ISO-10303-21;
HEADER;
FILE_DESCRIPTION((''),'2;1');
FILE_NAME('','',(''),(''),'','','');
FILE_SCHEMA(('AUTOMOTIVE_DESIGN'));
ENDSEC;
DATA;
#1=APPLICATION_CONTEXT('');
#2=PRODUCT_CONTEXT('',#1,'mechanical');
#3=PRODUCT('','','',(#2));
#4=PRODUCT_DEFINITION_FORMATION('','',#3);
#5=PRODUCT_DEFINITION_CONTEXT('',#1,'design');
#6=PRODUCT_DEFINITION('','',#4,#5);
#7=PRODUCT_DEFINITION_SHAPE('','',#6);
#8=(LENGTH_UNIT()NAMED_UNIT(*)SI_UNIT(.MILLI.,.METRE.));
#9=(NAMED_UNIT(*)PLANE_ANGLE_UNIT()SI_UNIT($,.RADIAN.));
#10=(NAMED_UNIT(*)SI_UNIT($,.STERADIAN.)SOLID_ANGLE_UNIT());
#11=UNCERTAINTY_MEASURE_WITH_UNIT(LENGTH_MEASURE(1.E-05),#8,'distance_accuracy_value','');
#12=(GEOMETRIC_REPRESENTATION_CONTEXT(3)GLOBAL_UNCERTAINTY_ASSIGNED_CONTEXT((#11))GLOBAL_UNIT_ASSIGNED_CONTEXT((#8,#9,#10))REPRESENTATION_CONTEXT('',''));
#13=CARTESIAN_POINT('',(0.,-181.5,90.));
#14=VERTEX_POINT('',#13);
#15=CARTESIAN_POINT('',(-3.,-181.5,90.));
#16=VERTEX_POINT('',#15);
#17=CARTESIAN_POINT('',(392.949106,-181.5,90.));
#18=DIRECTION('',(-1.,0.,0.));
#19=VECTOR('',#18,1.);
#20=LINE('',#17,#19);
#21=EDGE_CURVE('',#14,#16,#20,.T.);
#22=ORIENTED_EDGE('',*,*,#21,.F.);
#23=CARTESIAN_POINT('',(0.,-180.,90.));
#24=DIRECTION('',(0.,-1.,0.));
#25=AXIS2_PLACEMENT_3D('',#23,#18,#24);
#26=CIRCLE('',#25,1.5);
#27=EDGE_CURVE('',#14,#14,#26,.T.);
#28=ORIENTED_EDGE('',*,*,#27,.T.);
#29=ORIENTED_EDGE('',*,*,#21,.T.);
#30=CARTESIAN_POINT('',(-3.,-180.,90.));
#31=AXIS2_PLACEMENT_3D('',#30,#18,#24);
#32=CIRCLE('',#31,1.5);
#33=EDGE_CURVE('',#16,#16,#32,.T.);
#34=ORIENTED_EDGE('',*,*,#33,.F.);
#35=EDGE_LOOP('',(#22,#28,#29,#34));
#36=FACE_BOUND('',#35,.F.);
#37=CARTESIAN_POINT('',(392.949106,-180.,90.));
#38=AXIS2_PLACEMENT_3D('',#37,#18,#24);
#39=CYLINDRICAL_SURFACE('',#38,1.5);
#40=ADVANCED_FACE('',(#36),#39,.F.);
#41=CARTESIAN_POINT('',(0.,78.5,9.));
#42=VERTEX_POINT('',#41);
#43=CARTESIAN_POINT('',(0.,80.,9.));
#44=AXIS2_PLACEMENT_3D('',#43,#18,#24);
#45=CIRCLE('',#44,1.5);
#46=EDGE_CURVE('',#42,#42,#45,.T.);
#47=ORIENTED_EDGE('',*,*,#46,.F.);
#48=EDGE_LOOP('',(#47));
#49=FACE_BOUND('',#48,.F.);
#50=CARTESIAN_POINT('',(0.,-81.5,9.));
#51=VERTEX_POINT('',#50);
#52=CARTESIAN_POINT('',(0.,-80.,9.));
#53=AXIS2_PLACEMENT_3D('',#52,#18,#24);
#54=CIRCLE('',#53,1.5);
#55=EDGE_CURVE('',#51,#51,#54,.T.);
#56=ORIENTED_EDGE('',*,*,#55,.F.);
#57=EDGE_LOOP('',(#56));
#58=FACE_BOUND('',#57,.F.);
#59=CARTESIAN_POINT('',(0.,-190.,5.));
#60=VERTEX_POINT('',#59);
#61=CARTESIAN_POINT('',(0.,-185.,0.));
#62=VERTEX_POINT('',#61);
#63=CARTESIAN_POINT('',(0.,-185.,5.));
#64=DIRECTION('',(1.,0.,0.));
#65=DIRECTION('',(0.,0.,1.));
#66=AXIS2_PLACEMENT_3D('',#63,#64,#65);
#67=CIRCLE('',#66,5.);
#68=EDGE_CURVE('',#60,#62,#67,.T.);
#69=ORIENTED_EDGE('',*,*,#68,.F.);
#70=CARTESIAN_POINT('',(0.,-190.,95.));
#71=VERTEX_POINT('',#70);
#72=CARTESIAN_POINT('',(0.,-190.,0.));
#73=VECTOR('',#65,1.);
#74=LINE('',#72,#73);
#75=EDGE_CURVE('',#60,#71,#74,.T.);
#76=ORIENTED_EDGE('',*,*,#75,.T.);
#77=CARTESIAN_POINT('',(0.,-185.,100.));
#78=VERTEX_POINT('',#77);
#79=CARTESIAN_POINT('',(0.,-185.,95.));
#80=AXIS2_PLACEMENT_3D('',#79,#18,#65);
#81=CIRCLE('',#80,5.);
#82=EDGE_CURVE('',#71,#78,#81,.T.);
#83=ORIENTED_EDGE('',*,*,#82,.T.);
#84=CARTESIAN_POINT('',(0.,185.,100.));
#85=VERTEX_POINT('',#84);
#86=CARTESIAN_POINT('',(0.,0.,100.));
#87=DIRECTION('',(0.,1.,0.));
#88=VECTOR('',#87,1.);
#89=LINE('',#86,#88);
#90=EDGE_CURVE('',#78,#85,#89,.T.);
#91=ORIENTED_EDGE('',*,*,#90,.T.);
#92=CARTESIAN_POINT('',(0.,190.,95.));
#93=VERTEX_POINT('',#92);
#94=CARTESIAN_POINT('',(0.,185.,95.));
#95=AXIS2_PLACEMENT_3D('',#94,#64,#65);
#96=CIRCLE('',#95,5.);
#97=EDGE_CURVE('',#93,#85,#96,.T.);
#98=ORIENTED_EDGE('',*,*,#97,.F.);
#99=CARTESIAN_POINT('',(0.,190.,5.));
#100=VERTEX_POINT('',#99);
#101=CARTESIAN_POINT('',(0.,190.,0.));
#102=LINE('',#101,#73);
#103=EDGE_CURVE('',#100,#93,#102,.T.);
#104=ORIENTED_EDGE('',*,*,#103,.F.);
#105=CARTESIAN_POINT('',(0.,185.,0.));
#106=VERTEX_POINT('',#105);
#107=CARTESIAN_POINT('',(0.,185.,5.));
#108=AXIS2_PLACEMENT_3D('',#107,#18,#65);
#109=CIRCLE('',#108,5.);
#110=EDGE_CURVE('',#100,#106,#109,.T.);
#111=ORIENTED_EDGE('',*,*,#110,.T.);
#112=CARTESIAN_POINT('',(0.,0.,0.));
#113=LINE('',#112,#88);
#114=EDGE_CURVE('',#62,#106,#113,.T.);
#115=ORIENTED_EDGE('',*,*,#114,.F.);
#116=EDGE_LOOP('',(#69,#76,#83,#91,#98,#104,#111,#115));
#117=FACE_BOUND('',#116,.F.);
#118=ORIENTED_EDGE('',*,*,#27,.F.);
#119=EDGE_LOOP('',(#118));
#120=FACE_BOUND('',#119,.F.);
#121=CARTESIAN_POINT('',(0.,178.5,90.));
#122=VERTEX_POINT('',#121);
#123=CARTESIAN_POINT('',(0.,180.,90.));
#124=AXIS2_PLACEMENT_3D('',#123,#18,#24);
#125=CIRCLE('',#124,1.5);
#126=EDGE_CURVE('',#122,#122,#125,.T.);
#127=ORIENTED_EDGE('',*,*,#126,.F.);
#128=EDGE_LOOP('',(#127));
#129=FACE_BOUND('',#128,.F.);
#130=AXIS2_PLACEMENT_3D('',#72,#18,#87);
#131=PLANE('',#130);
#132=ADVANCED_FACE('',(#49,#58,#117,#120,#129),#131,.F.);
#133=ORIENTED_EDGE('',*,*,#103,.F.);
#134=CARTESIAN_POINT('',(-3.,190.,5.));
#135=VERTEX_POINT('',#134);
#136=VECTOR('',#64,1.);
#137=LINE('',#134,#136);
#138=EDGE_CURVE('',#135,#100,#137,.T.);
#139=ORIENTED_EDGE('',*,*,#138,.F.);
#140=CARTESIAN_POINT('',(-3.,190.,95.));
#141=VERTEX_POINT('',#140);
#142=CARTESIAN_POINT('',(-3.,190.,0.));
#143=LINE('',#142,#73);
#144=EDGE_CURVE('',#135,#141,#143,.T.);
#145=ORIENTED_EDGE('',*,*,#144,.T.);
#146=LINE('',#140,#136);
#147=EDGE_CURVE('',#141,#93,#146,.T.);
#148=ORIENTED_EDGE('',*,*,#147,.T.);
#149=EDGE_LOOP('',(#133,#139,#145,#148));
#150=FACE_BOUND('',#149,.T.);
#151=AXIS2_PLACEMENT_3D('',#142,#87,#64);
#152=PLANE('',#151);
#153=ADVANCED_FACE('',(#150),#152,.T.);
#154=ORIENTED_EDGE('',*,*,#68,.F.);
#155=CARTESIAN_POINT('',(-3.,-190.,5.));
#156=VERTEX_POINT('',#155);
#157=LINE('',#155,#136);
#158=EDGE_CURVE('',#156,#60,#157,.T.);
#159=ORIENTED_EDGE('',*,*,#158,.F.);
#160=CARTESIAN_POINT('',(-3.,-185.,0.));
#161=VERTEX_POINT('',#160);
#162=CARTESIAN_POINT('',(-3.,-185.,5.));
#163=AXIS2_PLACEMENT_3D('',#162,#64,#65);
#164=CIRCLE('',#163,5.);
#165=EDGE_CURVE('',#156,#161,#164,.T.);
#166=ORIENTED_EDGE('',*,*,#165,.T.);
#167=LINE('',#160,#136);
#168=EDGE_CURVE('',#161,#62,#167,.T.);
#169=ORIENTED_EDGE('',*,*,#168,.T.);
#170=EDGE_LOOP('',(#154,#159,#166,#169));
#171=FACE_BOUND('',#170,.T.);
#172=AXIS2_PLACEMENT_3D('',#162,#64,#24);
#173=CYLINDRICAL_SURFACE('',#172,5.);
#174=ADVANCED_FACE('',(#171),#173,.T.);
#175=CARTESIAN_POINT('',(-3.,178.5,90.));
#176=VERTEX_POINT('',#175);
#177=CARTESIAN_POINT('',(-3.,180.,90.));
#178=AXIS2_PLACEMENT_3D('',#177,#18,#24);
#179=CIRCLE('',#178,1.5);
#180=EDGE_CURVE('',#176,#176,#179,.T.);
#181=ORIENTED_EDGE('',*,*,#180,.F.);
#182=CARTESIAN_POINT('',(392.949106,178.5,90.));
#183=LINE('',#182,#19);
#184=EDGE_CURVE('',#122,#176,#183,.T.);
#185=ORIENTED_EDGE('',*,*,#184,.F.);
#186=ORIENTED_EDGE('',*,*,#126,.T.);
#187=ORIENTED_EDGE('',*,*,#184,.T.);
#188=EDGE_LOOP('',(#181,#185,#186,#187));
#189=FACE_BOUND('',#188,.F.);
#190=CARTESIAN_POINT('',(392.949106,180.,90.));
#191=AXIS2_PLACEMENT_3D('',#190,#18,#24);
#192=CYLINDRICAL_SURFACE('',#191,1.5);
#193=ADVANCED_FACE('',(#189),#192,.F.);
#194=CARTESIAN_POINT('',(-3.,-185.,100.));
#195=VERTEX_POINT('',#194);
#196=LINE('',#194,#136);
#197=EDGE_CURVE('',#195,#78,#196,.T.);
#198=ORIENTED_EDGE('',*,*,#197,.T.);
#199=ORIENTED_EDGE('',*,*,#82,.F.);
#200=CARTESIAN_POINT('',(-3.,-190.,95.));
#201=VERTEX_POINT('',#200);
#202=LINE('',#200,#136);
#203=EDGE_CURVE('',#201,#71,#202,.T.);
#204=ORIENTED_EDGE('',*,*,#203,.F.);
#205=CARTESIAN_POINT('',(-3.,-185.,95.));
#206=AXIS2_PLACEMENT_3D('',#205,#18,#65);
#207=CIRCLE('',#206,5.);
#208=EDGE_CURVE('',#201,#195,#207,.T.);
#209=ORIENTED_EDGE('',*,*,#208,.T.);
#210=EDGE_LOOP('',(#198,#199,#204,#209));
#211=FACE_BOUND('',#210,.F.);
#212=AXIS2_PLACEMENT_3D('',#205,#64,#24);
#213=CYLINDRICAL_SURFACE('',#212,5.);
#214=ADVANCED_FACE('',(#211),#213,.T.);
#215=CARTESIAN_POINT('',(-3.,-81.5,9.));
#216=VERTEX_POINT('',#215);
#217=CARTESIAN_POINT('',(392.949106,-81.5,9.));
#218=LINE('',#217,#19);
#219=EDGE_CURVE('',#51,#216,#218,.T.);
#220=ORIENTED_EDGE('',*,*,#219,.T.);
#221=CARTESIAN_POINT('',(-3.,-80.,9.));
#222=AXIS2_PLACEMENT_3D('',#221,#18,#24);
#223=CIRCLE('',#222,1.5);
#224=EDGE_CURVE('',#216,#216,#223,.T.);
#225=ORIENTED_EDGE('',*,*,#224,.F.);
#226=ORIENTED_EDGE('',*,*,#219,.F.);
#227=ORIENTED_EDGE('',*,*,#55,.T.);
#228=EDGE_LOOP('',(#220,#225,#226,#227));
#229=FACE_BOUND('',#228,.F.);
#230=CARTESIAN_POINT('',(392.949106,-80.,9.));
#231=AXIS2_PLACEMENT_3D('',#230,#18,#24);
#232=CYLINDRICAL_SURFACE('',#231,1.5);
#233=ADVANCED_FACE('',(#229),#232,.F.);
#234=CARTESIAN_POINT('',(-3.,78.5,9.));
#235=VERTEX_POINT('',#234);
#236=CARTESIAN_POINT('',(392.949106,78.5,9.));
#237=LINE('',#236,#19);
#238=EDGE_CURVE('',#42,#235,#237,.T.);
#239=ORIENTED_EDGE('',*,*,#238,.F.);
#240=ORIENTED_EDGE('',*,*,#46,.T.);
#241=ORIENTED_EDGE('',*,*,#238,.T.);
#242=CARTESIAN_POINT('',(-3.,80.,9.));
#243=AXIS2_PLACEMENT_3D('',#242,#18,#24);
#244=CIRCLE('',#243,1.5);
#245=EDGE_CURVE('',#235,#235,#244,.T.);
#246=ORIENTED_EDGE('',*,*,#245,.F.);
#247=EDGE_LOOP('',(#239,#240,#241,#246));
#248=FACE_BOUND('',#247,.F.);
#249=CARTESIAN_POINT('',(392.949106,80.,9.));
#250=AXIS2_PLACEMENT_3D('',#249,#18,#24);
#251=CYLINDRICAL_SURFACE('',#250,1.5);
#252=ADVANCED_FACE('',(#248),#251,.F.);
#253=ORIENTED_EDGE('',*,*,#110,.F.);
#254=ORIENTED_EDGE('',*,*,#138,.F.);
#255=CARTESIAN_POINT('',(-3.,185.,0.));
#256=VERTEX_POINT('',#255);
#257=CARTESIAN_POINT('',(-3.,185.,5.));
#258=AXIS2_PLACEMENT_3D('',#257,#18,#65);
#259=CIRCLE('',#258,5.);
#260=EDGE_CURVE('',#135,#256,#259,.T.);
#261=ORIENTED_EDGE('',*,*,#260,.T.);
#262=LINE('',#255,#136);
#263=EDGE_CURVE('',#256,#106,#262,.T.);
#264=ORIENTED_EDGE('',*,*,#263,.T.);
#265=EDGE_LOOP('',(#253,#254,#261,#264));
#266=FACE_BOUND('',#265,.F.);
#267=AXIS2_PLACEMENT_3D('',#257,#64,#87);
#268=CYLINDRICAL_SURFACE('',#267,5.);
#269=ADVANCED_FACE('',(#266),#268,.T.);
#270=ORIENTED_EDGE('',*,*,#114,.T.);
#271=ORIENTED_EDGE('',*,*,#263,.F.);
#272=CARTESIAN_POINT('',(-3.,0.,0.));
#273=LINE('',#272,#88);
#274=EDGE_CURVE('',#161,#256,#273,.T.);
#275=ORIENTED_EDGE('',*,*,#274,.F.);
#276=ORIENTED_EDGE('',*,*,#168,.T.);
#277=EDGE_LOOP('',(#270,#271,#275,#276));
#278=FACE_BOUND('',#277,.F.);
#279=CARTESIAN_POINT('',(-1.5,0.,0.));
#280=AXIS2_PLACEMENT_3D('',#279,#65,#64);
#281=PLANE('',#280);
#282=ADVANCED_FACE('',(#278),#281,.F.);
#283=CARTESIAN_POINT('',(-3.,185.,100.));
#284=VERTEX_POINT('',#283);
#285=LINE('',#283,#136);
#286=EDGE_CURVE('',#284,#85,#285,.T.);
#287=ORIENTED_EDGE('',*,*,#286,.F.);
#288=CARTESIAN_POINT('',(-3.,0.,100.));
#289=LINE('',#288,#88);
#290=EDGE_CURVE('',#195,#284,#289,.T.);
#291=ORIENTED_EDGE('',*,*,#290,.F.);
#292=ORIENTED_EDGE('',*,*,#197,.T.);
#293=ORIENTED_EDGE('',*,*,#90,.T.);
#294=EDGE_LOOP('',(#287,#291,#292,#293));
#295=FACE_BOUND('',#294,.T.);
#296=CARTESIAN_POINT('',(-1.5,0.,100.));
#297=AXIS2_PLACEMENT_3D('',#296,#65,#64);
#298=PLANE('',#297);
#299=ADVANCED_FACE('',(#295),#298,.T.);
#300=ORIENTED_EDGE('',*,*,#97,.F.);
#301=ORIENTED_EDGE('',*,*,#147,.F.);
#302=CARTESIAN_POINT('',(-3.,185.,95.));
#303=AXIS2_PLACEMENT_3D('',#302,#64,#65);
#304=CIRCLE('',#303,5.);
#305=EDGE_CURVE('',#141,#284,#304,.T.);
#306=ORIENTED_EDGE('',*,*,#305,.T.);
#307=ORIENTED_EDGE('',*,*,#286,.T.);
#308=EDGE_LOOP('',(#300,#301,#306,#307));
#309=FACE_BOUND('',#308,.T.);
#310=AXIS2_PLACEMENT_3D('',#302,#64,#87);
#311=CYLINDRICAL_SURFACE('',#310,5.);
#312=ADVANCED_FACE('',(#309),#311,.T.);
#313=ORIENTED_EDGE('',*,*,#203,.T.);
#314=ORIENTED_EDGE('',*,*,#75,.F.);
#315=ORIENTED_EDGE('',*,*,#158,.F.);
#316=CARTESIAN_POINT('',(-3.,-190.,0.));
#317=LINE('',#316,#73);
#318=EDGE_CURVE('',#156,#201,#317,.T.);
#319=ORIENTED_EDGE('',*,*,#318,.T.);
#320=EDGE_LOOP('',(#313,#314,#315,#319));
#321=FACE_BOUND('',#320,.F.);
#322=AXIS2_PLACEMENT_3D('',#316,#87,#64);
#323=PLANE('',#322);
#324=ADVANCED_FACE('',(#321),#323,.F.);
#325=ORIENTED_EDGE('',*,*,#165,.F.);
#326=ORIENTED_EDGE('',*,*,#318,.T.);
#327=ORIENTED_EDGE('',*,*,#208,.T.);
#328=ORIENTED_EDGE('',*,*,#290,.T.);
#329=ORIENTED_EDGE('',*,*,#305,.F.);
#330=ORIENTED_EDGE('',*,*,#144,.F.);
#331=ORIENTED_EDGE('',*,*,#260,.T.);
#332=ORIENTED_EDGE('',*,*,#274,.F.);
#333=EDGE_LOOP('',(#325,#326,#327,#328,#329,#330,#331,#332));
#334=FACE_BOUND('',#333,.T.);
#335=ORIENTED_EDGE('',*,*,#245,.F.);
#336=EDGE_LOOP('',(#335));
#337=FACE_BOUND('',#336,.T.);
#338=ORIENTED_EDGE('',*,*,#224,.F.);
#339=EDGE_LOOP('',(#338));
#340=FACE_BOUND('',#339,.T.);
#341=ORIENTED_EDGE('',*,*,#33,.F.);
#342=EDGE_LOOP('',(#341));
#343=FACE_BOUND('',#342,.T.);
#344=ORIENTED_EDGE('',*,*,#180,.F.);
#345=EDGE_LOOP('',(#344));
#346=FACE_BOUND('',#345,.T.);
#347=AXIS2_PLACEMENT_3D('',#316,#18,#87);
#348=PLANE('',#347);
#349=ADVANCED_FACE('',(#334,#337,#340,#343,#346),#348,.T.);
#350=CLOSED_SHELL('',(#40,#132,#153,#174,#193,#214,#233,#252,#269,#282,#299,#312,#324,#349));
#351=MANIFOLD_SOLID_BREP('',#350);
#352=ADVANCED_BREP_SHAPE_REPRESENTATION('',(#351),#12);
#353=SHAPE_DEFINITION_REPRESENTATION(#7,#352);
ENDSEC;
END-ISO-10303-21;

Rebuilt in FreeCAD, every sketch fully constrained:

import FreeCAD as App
import Part
import Sketcher


def edges_at(feature, points):
    """Names of the edges that pass closest to the given points."""
    edges = feature.Shape.Edges
    near = lambda p: min(range(len(edges)), key=lambda i: edges[i].distToShape(Part.Vertex(*p))[0])
    return sorted({f"Edge{near(p) + 1}" for p in points})

doc = App.newDocument("Part")
body = doc.addObject("PartDesign::Body", "Body")

# Sketch on XY plane
sketch1 = body.newObject("Sketcher::SketchObject", "Sketch")
sketch1.AttachmentSupport = (doc.getObject("XY_Plane"), [""])
sketch1.MapMode = "FlatFace"
sketch1.addGeometry(Part.LineSegment(App.Vector(-3, 190, 0), App.Vector(-3, -190, 0)), False)
sketch1.addGeometry(Part.LineSegment(App.Vector(-3, -190, 0), App.Vector(0, -190, 0)), False)
sketch1.addGeometry(Part.LineSegment(App.Vector(0, -190, 0), App.Vector(0, 190, 0)), False)
sketch1.addGeometry(Part.LineSegment(App.Vector(0, 190, 0), App.Vector(-3, 190, 0)), False)
sketch1.addConstraint(Sketcher.Constraint("Coincident", 0, 2, 1, 1))
sketch1.addConstraint(Sketcher.Constraint("Coincident", 1, 2, 2, 1))
sketch1.addConstraint(Sketcher.Constraint("Coincident", 2, 2, 3, 1))
sketch1.addConstraint(Sketcher.Constraint("Coincident", 3, 2, 0, 1))
sketch1.addConstraint(Sketcher.Constraint("Vertical", 0))
sketch1.addConstraint(Sketcher.Constraint("Horizontal", 1))
sketch1.addConstraint(Sketcher.Constraint("Vertical", 2))
sketch1.addConstraint(Sketcher.Constraint("Horizontal", 3))
sketch1.addConstraint(Sketcher.Constraint("Symmetric", 1, 2, 2, 2, -1, 1))
sketch1.addConstraint(Sketcher.Constraint("DistanceX", 1, 1, 1, 2, 3.0))
sketch1.addConstraint(Sketcher.Constraint("DistanceY", 0, 2, 0, 1, 380.0))
pad1 = body.newObject("PartDesign::Pad", "Pad")
pad1.Profile = sketch1
pad1.Length = 100
doc.recompute()

fillet = body.newObject("PartDesign::Fillet", "Fillet")
fillet.Base = (pad1, edges_at(pad1, [
    (-1.5, -190, 100),
    (-1.5, -190, 0),
    (-1.5, 190, 0),
    (-1.5, 190, 100),
]))
fillet.Radius = 5

# Sketch on YZ plane
sketch2 = body.newObject("Sketcher::SketchObject", "Sketch001")
sketch2.AttachmentSupport = (doc.getObject("YZ_Plane"), [""])
sketch2.MapMode = "FlatFace"
sketch2.addGeometry(Part.Circle(App.Vector(180, 90, 0), App.Vector(0, 0, 1), 1.5), False)
sketch2.addGeometry(Part.Circle(App.Vector(80, 9, 0), App.Vector(0, 0, 1), 1.5), False)
sketch2.addGeometry(Part.Circle(App.Vector(-80, 9, 0), App.Vector(0, 0, 1), 1.5), False)
sketch2.addGeometry(Part.Circle(App.Vector(-180, 90, 0), App.Vector(0, 0, 1), 1.5), False)
sketch2.addConstraint(Sketcher.Constraint("Equal", 0, 1))
sketch2.addConstraint(Sketcher.Constraint("Equal", 1, 2))
sketch2.addConstraint(Sketcher.Constraint("Equal", 2, 3))
sketch2.addConstraint(Sketcher.Constraint("Symmetric", 1, 3, 2, 3, -2))
sketch2.addConstraint(Sketcher.Constraint("Symmetric", 0, 3, 3, 3, -2))
sketch2.addConstraint(Sketcher.Constraint("Diameter", 0, 3.0))
sketch2.addConstraint(Sketcher.Constraint("DistanceX", -1, 1, 0, 3, 180.0))
sketch2.addConstraint(Sketcher.Constraint("DistanceY", -1, 1, 0, 3, 90.0))
sketch2.addConstraint(Sketcher.Constraint("DistanceX", -1, 1, 1, 3, 80.0))
sketch2.addConstraint(Sketcher.Constraint("DistanceY", -1, 1, 1, 3, 9.0))
doc.recompute()
hole = body.newObject("PartDesign::Hole", "Hole")
hole.Profile = sketch2
hole.ThreadType = "None"
hole.Diameter = 3
hole.DepthType = "ThroughAll"

doc.recompute()
